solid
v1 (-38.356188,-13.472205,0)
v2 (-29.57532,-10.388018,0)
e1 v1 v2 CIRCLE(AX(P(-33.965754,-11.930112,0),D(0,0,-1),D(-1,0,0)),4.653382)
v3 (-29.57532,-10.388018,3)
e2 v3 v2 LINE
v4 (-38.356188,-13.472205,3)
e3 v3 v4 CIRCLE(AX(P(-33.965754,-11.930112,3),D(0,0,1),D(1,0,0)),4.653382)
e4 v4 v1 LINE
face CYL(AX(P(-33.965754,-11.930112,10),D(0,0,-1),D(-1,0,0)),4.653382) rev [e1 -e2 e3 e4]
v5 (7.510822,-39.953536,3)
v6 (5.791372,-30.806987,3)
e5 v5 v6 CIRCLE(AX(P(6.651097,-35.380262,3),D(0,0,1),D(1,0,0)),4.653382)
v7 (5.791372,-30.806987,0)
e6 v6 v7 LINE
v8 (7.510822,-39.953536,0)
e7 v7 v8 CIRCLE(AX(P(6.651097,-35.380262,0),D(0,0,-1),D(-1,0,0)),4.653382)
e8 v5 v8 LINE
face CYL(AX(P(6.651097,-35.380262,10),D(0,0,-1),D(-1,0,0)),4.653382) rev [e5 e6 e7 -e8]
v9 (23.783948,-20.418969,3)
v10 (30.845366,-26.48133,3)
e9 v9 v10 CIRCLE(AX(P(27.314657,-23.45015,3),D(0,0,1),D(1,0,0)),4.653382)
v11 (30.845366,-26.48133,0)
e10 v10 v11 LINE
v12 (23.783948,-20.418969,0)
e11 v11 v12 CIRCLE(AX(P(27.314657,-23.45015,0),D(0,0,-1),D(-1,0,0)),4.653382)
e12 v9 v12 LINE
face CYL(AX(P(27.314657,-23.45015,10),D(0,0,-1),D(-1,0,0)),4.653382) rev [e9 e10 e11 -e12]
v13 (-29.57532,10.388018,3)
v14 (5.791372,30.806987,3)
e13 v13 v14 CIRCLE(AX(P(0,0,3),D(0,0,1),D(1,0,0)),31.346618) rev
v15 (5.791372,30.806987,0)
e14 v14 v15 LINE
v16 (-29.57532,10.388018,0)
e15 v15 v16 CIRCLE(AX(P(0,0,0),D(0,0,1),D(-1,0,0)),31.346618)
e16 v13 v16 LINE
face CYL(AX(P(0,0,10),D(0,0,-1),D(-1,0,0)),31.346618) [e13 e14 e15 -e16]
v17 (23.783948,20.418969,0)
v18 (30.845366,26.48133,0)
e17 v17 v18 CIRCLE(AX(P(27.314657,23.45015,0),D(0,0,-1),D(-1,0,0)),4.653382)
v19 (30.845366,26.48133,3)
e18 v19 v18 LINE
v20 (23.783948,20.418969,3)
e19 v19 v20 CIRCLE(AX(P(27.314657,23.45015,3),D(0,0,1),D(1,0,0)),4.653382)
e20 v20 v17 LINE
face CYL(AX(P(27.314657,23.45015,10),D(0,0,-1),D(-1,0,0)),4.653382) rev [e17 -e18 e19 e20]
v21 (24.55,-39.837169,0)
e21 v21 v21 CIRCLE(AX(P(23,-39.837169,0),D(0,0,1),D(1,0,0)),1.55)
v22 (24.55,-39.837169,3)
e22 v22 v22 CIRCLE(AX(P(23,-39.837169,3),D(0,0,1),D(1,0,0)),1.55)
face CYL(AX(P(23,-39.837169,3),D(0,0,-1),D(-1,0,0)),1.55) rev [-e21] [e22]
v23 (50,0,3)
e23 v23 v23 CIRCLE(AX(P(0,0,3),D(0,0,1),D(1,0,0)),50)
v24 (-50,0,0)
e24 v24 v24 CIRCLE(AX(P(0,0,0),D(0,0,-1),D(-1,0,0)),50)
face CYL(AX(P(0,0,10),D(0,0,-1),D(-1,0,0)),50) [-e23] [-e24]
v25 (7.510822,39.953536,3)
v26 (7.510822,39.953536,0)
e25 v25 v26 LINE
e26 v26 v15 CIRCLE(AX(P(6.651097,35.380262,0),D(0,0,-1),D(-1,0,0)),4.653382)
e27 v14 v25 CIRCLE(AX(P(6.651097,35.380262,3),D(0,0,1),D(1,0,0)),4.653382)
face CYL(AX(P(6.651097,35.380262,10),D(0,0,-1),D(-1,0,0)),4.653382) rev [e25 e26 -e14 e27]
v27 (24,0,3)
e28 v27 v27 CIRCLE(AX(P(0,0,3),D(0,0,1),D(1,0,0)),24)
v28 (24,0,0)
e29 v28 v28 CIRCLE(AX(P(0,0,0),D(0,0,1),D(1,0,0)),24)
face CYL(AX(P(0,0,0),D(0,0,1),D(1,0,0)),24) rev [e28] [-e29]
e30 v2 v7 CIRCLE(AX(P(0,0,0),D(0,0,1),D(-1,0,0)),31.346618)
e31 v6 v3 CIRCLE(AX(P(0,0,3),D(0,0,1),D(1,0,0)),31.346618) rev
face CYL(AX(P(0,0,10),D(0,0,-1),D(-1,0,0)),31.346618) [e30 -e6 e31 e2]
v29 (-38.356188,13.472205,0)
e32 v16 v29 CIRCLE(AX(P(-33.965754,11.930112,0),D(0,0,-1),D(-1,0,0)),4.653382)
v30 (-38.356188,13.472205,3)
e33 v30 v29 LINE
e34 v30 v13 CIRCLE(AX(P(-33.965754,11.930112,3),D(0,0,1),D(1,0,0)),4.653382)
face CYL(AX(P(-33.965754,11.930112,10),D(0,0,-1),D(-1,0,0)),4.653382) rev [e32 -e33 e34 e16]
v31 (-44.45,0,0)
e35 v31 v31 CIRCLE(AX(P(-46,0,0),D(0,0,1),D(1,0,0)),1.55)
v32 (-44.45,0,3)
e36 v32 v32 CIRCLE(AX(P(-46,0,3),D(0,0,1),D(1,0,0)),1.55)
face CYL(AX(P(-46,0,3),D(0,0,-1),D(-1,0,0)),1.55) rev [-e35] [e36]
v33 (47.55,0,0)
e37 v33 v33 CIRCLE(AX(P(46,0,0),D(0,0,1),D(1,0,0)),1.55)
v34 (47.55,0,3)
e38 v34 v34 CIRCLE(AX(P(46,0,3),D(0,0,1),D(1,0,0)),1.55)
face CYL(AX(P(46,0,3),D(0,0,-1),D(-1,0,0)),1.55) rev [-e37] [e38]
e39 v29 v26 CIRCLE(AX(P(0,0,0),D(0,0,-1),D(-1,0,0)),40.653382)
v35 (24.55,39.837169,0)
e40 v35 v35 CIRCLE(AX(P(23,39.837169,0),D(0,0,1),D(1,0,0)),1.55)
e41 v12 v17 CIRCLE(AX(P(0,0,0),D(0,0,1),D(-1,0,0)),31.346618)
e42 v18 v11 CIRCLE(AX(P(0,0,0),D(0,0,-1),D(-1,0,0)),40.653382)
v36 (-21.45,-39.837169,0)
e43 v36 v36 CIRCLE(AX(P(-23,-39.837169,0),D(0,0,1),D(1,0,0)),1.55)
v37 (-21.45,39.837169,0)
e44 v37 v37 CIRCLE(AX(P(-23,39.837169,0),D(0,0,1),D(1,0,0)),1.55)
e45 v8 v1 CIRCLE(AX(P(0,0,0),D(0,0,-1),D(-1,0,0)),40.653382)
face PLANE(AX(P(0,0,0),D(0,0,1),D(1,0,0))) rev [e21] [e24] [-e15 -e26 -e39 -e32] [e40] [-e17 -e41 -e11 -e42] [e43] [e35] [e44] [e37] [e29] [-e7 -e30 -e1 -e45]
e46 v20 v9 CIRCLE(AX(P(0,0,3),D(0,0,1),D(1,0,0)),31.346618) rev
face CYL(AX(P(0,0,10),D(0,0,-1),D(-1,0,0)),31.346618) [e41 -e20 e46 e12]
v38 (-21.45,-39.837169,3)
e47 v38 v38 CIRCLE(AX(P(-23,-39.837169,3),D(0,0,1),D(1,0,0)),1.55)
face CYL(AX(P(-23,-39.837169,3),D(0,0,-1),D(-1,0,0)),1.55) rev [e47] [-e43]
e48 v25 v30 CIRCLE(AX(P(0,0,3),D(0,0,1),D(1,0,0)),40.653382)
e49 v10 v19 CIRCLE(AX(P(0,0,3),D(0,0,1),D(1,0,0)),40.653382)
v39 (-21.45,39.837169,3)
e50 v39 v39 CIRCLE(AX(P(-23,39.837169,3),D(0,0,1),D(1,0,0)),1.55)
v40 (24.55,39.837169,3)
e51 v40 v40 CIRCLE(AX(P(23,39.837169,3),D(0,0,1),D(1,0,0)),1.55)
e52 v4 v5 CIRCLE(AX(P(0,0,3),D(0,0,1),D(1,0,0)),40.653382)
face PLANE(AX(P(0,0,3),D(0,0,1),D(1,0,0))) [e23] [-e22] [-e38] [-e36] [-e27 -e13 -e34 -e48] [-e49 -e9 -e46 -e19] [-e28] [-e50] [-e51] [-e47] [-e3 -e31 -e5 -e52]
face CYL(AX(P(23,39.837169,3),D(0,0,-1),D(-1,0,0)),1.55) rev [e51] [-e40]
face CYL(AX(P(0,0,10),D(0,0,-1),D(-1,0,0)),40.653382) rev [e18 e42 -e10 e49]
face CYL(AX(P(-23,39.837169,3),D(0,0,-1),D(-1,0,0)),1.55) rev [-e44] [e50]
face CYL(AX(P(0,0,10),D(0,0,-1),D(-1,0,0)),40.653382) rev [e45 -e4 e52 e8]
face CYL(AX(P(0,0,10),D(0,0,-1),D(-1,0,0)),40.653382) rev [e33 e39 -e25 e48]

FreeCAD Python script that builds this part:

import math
import FreeCAD as App
import Part
import Sketcher
Q = App.Units.Quantity

doc = App.newDocument("Part")
body = doc.addObject("PartDesign::Body", "Body")

# Sketch on XY plane
sketch1 = doc.addObject("Sketcher::SketchObject", "Sketch")
body.addObject(sketch1)
sketch1.AttachmentSupport = (doc.XY_Plane, [""])
sketch1.MapMode = "FlatFace"
sketch1.addGeometry([
    Part.Circle(App.Vector(0, 0, 0), App.Vector(0, 0, 1), 52),  # 0
    Part.Circle(App.Vector(-23, -39.8, 0), App.Vector(0, 0, 1), 1.6),  # 1
    Part.Circle(App.Vector(23, -39.8, 0), App.Vector(0, 0, 1), 1.6),  # 2
    Part.Circle(App.Vector(-46, 0, 0), App.Vector(0, 0, 1), 1.6),  # 3
    Part.Circle(App.Vector(-23, 39.8, 0), App.Vector(0, 0, 1), 1.6),  # 4
    Part.Circle(App.Vector(0, 0, 0), App.Vector(0, 0, 1), 40),  # 5
    Part.Circle(App.Vector(46, 0, 0), App.Vector(0, 0, 1), 1.6),  # 6
    Part.Circle(App.Vector(23, 39.8, 0), App.Vector(0, 0, 1), 1.6),  # 7
], False)
sketch1.addConstraint([
    Sketcher.Constraint("Coincident", 0, 3, -1, 1),
    Sketcher.Constraint("Coincident", 5, 3, -1, 1),
    Sketcher.Constraint("Equal", 1, 2),
    Sketcher.Constraint("Equal", 2, 3),
    Sketcher.Constraint("Equal", 3, 4),
    Sketcher.Constraint("Equal", 4, 6),
    Sketcher.Constraint("Equal", 6, 7),
    Sketcher.Constraint("Symmetric", 2, 3, 4, 3, -1, 1),
    Sketcher.Constraint("Symmetric", 3, 3, 6, 3, -1, 1),
    Sketcher.Constraint("Symmetric", 1, 3, 7, 3, -1, 1),
    Sketcher.Constraint("Symmetric", 1, 3, 2, 3, -2),
    Sketcher.Constraint("PointOnObject", 3, 3, -1),
    Sketcher.Constraint("Diameter", 0, Q("104 mm")),
    Sketcher.Constraint("Diameter", 5, Q("80 mm")),
    Sketcher.Constraint("Diameter", 1, Q("3.1 mm")),
    Sketcher.Constraint("DistanceX", 1, 3, -1, 1, Q("23 mm")),
    Sketcher.Constraint("DistanceX", 3, 3, -1, 1, Q("46 mm")),
    Sketcher.Constraint("DistanceY", 1, 3, -1, 1, Q("39.837169 mm")),
])
pad1 = doc.addObject("PartDesign::Pad", "Pad")
body.addObject(pad1)
pad1.Profile = sketch1
pad1.Length = 3

# Sketch on XY plane
sketch2 = doc.addObject("Sketcher::SketchObject", "Sketch001")
body.addObject(sketch2)
sketch2.AttachmentSupport = (doc.XY_Plane, [""])
sketch2.MapMode = "FlatFace"
sketch2.addGeometry([
    Part.Circle(App.Vector(0, 0, 0), App.Vector(0, 0, 1), 40),
    Part.Circle(App.Vector(0, 0, 0), App.Vector(0, 0, 1), 24),
], False)
sketch2.addConstraint([
    Sketcher.Constraint("Coincident", 0, 3, -1, 1),
    Sketcher.Constraint("Coincident", 1, 3, -1, 1),
    Sketcher.Constraint("Diameter", 0, Q("80 mm")),
    Sketcher.Constraint("Diameter", 1, Q("48 mm")),
])
pad2 = doc.addObject("PartDesign::Pad", "Pad001")
body.addObject(pad2)
pad2.Profile = sketch2
pad2.Length = 3

# Sketch on XY plane
sketch3 = doc.addObject("Sketcher::SketchObject", "Sketch002")
body.addObject(sketch3)
sketch3.AttachmentSupport = (doc.XY_Plane, [""])
sketch3.MapMode = "FlatFace"
sketch3.addGeometry([
    Part.ArcOfCircle(Part.Circle(App.Vector(0, 0, 0), App.Vector(0, 0, 1), 40.7), math.radians(79), math.radians(161)),  # 0
    Part.ArcOfCircle(Part.Circle(App.Vector(6.7, 35.4, 0), App.Vector(0, 0, 1), 4.7), math.radians(-101), math.radians(79)),  # 1
    Part.ArcOfCircle(Part.Circle(App.Vector(0, 0, 0), App.Vector(0, 0, 1), 31.3), math.radians(79), math.radians(161)),  # 2
    Part.ArcOfCircle(Part.Circle(App.Vector(-34, 11.9, 0), App.Vector(0, 0, 1), 4.7), math.radians(161), math.radians(341)),  # 3
    Part.ArcOfCircle(Part.Circle(App.Vector(0, 0, 0), App.Vector(0, 0, 1), 31.3), math.radians(-161), math.radians(-79)),  # 4
    Part.ArcOfCircle(Part.Circle(App.Vector(6.7, -35.4, 0), App.Vector(0, 0, 1), 4.7), math.radians(-79), math.radians(101)),  # 5
    Part.ArcOfCircle(Part.Circle(App.Vector(0, 0, 0), App.Vector(0, 0, 1), 40.7), math.radians(-161), math.radians(-79)),  # 6
    Part.ArcOfCircle(Part.Circle(App.Vector(-34, -11.9, 0), App.Vector(0, 0, 1), 4.7), math.radians(19), math.radians(199)),  # 7
    Part.ArcOfCircle(Part.Circle(App.Vector(0, 0, 0), App.Vector(0, 0, 1), 31.3), math.radians(-41), math.radians(41)),  # 8
    Part.ArcOfCircle(Part.Circle(App.Vector(27.3, 23.5, 0), App.Vector(0, 0, 1), 4.7), math.radians(41), math.radians(221)),  # 9
    Part.ArcOfCircle(Part.Circle(App.Vector(0, 0, 0), App.Vector(0, 0, 1), 40.7), math.radians(-41), math.radians(41)),  # 10
    Part.ArcOfCircle(Part.Circle(App.Vector(27.3, -23.5, 0), App.Vector(0, 0, 1), 4.7), math.radians(139), math.radians(319)),  # 11
], False)
sketch3.addConstraint([
    Sketcher.Constraint("Tangent", 0, 1, 1, 2),
    Sketcher.Constraint("Tangent", 1, 1, 2, 1),
    Sketcher.Constraint("Tangent", 2, 2, 3, 2),
    Sketcher.Constraint("Tangent", 3, 1, 0, 2),
    Sketcher.Constraint("Tangent", 4, 2, 5, 2),
    Sketcher.Constraint("Tangent", 5, 1, 6, 2),
    Sketcher.Constraint("Tangent", 6, 1, 7, 2),
    Sketcher.Constraint("Tangent", 7, 1, 4, 1),
    Sketcher.Constraint("Tangent", 8, 2, 9, 2),
    Sketcher.Constraint("Tangent", 9, 1, 10, 2),
    Sketcher.Constraint("Tangent", 10, 1, 11, 2),
    Sketcher.Constraint("Tangent", 11, 1, 8, 1),
    Sketcher.Constraint("Coincident", 0, 3, -1, 1),
    Sketcher.Constraint("Coincident", 2, 3, -1, 1),
    Sketcher.Constraint("Coincident", 4, 3, -1, 1),
    Sketcher.Constraint("Coincident", 6, 3, -1, 1),
    Sketcher.Constraint("Coincident", 8, 3, -1, 1),
    Sketcher.Constraint("Coincident", 10, 3, -1, 1),
    Sketcher.Constraint("Equal", 2, 4),
    Sketcher.Constraint("Equal", 3, 5),
    Sketcher.Constraint("Equal", 4, 8),
    Sketcher.Constraint("Equal", 7, 9),
    Sketcher.Constraint("Vertical", 1, 3, 5, 3),
    Sketcher.Constraint("Vertical", 3, 3, 7, 3),
    Sketcher.Constraint("Vertical", 9, 3, 11, 3),
    Sketcher.Constraint("Radius", 0, Q("40.653382 mm")),
    Sketcher.Constraint("Radius", 1, Q("4.653382 mm")),
    Sketcher.Constraint("DistanceY", -1, 1, 1, 3, Q("35.380262 mm")),
    Sketcher.Constraint("DistanceY", -1, 1, 3, 3, Q("11.930112 mm")),
    Sketcher.Constraint("DistanceY", -1, 1, 9, 3, Q("23.45015 mm")),
])
pocket1 = doc.addObject("PartDesign::Pocket", "Pocket")
body.addObject(pocket1)
pocket1.Profile = sketch3
pocket1.Length = 10
pocket1.Reversed = True

# Sketch on XY plane
sketch4 = doc.addObject("Sketcher::SketchObject", "Sketch003")
body.addObject(sketch4)
sketch4.AttachmentSupport = (doc.XY_Plane, [""])
sketch4.MapMode = "FlatFace"
sketch4.addGeometry([
    Part.Circle(App.Vector(0, 0, 0), App.Vector(0, 0, 1), 63),
    Part.Circle(App.Vector(0, 0, 0), App.Vector(0, 0, 1), 50),
], False)
sketch4.addConstraint([
    Sketcher.Constraint("Coincident", 0, 3, -1, 1),
    Sketcher.Constraint("Coincident", 1, 3, -1, 1),
    Sketcher.Constraint("Diameter", 1, Q("100 mm")),
    Sketcher.Constraint("Diameter", 0, Q("126.048181 mm")),
])
pocket2 = doc.addObject("PartDesign::Pocket", "Pocket001")
body.addObject(pocket2)
pocket2.Profile = sketch4
pocket2.Length = 10
pocket2.Reversed = True

doc.recompute()
